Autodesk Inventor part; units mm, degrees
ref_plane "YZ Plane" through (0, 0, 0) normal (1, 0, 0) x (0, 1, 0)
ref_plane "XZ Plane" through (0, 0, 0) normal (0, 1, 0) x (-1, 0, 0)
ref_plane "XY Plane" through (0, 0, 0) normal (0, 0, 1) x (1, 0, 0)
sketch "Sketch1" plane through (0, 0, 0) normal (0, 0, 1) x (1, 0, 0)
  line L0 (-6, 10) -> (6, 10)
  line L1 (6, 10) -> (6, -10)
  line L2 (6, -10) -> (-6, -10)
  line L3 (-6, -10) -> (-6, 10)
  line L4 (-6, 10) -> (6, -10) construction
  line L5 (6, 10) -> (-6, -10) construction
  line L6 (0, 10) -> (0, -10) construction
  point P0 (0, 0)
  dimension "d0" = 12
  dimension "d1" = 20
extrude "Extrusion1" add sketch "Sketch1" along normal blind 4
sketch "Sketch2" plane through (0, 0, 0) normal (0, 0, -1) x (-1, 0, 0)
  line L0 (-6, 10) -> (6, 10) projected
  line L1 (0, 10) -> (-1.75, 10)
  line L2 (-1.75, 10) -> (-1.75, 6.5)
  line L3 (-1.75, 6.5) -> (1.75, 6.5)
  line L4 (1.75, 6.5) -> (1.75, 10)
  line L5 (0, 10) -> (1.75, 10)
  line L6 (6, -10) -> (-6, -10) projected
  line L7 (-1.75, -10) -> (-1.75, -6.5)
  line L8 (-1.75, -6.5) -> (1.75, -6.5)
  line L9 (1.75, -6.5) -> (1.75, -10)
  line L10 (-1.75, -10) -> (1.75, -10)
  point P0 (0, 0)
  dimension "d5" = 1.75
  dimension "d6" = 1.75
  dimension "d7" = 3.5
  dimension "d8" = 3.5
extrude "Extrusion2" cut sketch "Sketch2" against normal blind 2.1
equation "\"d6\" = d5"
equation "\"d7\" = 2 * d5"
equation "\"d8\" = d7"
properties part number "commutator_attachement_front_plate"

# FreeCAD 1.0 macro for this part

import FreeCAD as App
import Part
import Sketcher
from FreeCAD import Vector
Q = App.Units.Quantity


def add_polygon(sketch, points):
    """Adds a closed chain of lines whose ends are joined by coincident constraints."""
    first, n = sketch.GeometryCount, len(points)
    for a, b in zip(points, points[1:] + points[:1]):
        sketch.addGeometry(Part.LineSegment(App.Vector(*a, 0), App.Vector(*b, 0)), False)
    for i in range(n):
        sketch.addConstraint(Sketcher.Constraint("Coincident", first + i, 2, first + (i + 1) % n, 1))

doc = App.newDocument("Part")
body = doc.addObject("PartDesign::Body", "Body")

# Sketch on XY plane
sketch1 = body.newObject("Sketcher::SketchObject", "Sketch")
sketch1.AttachmentSupport = (doc.getObject("XY_Plane"), [""])
sketch1.MapMode = "FlatFace"
add_polygon(sketch1, [(6, 10), (-6, 10), (-6, -10), (6, -10)])  # lines 0-3
sketch1.addConstraint([
    Sketcher.Constraint("Horizontal", 0),
    Sketcher.Constraint("Vertical", 1),
    Sketcher.Constraint("Horizontal", 2),
    Sketcher.Constraint("Vertical", 3),
    Sketcher.Constraint("Symmetric", 0, 2, 2, 2, -1, 1),
    Sketcher.Constraint("DistanceX", 0, 2, 0, 1, Q("12 mm")),
    Sketcher.Constraint("DistanceY", 1, 2, 1, 1, Q("20 mm")),
])
pad1 = body.newObject("PartDesign::Pad", "Pad")
pad1.Profile = sketch1
pad1.Length = 4

# Sketch on XY plane
sketch2 = body.newObject("Sketcher::SketchObject", "Sketch001")
sketch2.AttachmentSupport = (doc.getObject("XY_Plane"), [""])
sketch2.MapMode = "FlatFace"
add_polygon(sketch2, [(-1.75, 10), (1.75, 10), (1.75, 6.5), (-1.75, 6.5)])  # lines 0-3
add_polygon(sketch2, [(1.75, -10), (-1.75, -10), (-1.75, -6.5), (1.75, -6.5)])  # lines 4-7
sketch2.addConstraint([
    Sketcher.Constraint("Horizontal", 0),
    Sketcher.Constraint("Vertical", 1),
    Sketcher.Constraint("Horizontal", 2),
    Sketcher.Constraint("Vertical", 3),
    Sketcher.Constraint("Horizontal", 4),
    Sketcher.Constraint("Vertical", 5),
    Sketcher.Constraint("Horizontal", 6),
    Sketcher.Constraint("Vertical", 7),
    Sketcher.Constraint("Symmetric", 0, 2, 4, 2, -1, 1),
    Sketcher.Constraint("Symmetric", 2, 2, 6, 2, -1, 1),
    Sketcher.Constraint("Vertical", 3, 2, 4, 2),
    Sketcher.Constraint("Equal", 6, 1),
    Sketcher.Constraint("DistanceX", 0, 1, 0, 2, Q("3.5 mm")),
    Sketcher.Constraint("DistanceY", -1, 1, 0, 2, Q("10 mm")),
])
pocket1 = body.newObject("PartDesign::Pocket", "Pocket")
pocket1.Profile = sketch2
pocket1.Length = 2.1
pocket1.Reversed = True

doc.recompute()
